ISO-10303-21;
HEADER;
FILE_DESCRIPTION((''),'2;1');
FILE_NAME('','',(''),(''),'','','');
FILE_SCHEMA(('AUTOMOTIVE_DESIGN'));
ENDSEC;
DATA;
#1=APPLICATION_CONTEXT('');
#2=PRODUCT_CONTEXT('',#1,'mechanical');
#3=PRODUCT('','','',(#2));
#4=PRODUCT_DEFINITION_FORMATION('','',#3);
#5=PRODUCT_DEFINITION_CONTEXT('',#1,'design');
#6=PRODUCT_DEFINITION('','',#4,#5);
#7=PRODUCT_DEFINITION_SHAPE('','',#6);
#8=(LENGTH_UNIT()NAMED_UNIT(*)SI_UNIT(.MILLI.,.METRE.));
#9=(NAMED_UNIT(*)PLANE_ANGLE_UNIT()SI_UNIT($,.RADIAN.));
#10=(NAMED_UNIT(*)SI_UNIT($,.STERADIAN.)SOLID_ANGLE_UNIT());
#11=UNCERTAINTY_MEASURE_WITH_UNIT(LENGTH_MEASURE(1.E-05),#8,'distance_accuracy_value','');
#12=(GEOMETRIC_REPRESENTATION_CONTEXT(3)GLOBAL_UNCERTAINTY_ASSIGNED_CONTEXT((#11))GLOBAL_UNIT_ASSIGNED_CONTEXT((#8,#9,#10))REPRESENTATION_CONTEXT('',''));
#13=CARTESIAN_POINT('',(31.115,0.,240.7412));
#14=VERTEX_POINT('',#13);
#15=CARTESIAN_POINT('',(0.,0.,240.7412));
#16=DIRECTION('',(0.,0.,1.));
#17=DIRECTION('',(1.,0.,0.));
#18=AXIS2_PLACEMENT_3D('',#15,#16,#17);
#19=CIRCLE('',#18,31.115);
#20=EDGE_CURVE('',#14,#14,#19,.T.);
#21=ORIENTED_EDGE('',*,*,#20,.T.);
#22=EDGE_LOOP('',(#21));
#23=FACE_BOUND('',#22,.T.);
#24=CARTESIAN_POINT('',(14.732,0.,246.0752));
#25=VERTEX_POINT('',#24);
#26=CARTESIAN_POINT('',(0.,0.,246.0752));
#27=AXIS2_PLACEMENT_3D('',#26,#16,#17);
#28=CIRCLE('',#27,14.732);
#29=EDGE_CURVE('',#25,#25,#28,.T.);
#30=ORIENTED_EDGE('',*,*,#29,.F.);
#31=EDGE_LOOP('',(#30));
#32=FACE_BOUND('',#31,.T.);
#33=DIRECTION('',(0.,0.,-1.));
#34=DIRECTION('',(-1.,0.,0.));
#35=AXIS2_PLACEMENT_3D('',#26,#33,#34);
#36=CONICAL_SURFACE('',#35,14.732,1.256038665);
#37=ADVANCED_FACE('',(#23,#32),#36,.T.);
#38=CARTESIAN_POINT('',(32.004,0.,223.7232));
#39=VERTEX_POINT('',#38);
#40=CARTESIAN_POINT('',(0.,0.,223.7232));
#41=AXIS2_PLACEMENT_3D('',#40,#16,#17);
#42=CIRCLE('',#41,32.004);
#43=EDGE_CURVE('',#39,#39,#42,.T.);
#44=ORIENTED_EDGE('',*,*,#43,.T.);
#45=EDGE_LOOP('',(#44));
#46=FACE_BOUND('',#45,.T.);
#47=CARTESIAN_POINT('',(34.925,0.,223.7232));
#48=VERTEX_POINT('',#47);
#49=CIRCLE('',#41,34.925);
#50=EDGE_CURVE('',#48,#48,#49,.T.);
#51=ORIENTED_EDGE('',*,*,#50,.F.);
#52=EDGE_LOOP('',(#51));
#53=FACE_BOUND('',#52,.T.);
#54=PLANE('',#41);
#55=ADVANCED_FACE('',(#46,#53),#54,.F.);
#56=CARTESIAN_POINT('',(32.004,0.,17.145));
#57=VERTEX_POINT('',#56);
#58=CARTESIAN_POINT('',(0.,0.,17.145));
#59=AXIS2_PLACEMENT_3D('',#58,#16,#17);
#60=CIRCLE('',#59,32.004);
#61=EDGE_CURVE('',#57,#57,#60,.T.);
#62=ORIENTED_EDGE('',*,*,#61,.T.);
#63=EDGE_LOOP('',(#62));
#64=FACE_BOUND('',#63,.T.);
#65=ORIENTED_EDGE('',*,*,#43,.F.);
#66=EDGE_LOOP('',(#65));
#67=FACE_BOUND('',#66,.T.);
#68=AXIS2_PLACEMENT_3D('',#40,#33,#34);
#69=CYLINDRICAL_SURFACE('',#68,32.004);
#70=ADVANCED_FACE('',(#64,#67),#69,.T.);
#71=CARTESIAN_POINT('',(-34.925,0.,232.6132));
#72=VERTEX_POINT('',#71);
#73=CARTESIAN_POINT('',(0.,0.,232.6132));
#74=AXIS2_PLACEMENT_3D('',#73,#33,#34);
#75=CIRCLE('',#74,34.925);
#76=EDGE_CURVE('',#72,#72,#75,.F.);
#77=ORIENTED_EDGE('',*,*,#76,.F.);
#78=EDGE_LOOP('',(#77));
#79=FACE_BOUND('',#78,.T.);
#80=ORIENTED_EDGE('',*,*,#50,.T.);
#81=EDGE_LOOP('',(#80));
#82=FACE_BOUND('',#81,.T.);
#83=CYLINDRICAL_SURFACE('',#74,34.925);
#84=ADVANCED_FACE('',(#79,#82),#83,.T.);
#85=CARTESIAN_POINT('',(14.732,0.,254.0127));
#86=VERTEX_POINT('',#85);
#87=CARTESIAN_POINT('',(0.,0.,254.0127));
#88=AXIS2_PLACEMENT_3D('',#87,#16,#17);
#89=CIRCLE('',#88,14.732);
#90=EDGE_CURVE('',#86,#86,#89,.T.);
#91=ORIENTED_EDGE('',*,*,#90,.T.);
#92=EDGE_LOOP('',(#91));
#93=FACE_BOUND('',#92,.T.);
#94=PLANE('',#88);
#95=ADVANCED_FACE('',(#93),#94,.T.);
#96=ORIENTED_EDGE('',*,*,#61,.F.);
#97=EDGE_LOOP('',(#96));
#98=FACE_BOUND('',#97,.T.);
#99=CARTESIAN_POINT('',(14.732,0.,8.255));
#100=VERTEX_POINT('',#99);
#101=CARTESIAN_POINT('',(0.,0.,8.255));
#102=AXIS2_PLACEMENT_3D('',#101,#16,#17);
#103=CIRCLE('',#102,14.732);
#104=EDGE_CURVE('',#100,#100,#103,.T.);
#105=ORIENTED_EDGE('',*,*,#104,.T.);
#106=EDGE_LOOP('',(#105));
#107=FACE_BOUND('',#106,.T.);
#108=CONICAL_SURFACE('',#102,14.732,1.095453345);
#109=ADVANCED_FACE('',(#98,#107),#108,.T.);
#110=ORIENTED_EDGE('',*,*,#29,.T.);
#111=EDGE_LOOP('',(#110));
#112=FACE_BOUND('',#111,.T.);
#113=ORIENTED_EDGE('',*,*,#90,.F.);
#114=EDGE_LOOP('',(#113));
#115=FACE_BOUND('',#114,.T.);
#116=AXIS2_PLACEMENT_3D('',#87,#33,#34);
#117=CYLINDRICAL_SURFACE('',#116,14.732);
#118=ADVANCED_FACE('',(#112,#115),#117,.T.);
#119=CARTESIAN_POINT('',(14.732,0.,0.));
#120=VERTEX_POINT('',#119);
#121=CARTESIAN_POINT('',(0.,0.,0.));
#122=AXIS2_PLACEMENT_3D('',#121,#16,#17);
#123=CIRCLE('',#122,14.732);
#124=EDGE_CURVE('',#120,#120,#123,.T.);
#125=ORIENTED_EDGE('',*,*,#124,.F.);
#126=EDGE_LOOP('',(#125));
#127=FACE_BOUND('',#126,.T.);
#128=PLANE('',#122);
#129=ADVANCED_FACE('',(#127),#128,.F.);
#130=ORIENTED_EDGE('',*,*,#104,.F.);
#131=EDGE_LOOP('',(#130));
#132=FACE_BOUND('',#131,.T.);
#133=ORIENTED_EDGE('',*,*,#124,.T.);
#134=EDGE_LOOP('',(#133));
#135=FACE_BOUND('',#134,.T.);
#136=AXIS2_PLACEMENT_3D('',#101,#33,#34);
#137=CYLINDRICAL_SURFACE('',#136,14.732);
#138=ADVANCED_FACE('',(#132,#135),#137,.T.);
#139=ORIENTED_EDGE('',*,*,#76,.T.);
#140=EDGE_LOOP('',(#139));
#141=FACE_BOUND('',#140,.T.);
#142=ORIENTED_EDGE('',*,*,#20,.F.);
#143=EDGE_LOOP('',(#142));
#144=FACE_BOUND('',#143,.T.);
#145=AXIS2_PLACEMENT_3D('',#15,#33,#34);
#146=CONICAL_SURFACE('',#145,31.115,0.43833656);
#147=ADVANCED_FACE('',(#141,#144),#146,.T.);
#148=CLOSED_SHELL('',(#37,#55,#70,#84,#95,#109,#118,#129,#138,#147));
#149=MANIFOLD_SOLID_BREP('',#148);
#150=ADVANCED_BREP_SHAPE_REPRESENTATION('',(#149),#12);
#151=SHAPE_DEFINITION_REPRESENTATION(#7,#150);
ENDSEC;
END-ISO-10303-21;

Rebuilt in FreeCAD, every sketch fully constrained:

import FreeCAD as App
import Part
import Sketcher
Q = App.Units.Quantity

doc = App.newDocument("Part")
body = doc.addObject("PartDesign::Body", "Body")

# Sketch on XY plane
sketch1 = doc.addObject("Sketcher::SketchObject", "Sketch")
body.addObject(sketch1)
sketch1.AttachmentSupport = (doc.XY_Plane, [""])
sketch1.MapMode = "FlatFace"
sketch1.addGeometry(Part.Circle(App.Vector(0, 0, 0), App.Vector(0, 0, 1), 14.732), False)
sketch1.addConstraint(Sketcher.Constraint("Coincident", 0, 3, -1, 1))
sketch1.addConstraint(Sketcher.Constraint("Diameter", 0, Q("1.16 in")))
pad1 = doc.addObject("PartDesign::Pad", "Pad")
body.addObject(pad1)
pad1.Profile = sketch1
pad1.Length = Q("0.325 in")

# Sketch on XY plane
sketch2 = doc.addObject("Sketcher::SketchObject", "Sketch001")
body.addObject(sketch2)
sketch2.AttachmentSupport = (doc.XY_Plane, [""])
sketch2.MapMode = "FlatFace"
sketch2.AttachmentOffset = App.Placement(App.Vector(0, 0, 0.325 * 25.4), App.Rotation())
sketch2.addGeometry(Part.Circle(App.Vector(0, 0, 0), App.Vector(0, 0, 1), 14.732), False)
sketch2.addConstraint(Sketcher.Constraint("Coincident", 0, 3, -1, 1))
sketch2.addConstraint(Sketcher.Constraint("Diameter", 0, Q("1.16 in")))

# Sketch on XY plane
sketch3 = doc.addObject("Sketcher::SketchObject", "Sketch002")
body.addObject(sketch3)
sketch3.AttachmentSupport = (doc.XY_Plane, [""])
sketch3.MapMode = "FlatFace"
sketch3.AttachmentOffset = App.Placement(App.Vector(0, 0, 0.675 * 25.4), App.Rotation())
sketch3.addGeometry(Part.Circle(App.Vector(0, 0, 0), App.Vector(0, 0, 1), 32.004), False)
sketch3.addConstraint(Sketcher.Constraint("Coincident", 0, 3, -1, 1))
sketch3.addConstraint(Sketcher.Constraint("Diameter", 0, Q("2.52 in")))

additiveloft = doc.addObject("PartDesign::AdditiveLoft", "AdditiveLoft")
body.addObject(additiveloft)
additiveloft.Profile = sketch2
additiveloft.Sections = [sketch3]

# Sketch on XY plane
sketch4 = doc.addObject("Sketcher::SketchObject", "Sketch003")
body.addObject(sketch4)
sketch4.AttachmentSupport = (doc.XY_Plane, [""])
sketch4.MapMode = "FlatFace"
sketch4.AttachmentOffset = App.Placement(App.Vector(0, 0, 0.675 * 25.4), App.Rotation())
sketch4.addGeometry(Part.Circle(App.Vector(0, 0, 0), App.Vector(0, 0, 1), 32.004), False)
sketch4.addConstraint(Sketcher.Constraint("Coincident", 0, 3, -1, 1))
sketch4.addConstraint(Sketcher.Constraint("Diameter", 0, Q("2.52 in")))
pad2 = doc.addObject("PartDesign::Pad", "Pad001")
body.addObject(pad2)
pad2.Profile = sketch4
pad2.Length = Q("8.133 in")

# Sketch on XY plane
sketch5 = doc.addObject("Sketcher::SketchObject", "Sketch004")
body.addObject(sketch5)
sketch5.AttachmentSupport = (doc.XY_Plane, [""])
sketch5.MapMode = "FlatFace"
sketch5.AttachmentOffset = App.Placement(App.Vector(0, 0, 8.808 * 25.4), App.Rotation())
sketch5.addGeometry(Part.Circle(App.Vector(0, 0, 0), App.Vector(0, 0, 1), 34.925), False)
sketch5.addConstraint(Sketcher.Constraint("Coincident", 0, 3, -1, 1))
sketch5.addConstraint(Sketcher.Constraint("Diameter", 0, Q("2.75 in")))
pad3 = doc.addObject("PartDesign::Pad", "Pad002")
body.addObject(pad3)
pad3.Profile = sketch5
pad3.Length = Q("0.35 in")

# Sketch on XY plane
sketch6 = doc.addObject("Sketcher::SketchObject", "Sketch005")
body.addObject(sketch6)
sketch6.AttachmentSupport = (doc.XY_Plane, [""])
sketch6.MapMode = "FlatFace"
sketch6.AttachmentOffset = App.Placement(App.Vector(0, 0, 9.158 * 25.4), App.Rotation())
sketch6.addGeometry(Part.Circle(App.Vector(0, 0, 0), App.Vector(0, 0, 1), 34.925), False)
sketch6.addConstraint(Sketcher.Constraint("Coincident", 0, 3, -1, 1))
sketch6.addConstraint(Sketcher.Constraint("Diameter", 0, Q("2.75 in")))

# Sketch on XY plane
sketch7 = doc.addObject("Sketcher::SketchObject", "Sketch006")
body.addObject(sketch7)
sketch7.AttachmentSupport = (doc.XY_Plane, [""])
sketch7.MapMode = "FlatFace"
sketch7.AttachmentOffset = App.Placement(App.Vector(0, 0, 9.478 * 25.4), App.Rotation())
sketch7.addGeometry(Part.Circle(App.Vector(0, 0, 0), App.Vector(0, 0, 1), 31.115), False)
sketch7.addConstraint(Sketcher.Constraint("Coincident", 0, 3, -1, 1))
sketch7.addConstraint(Sketcher.Constraint("Diameter", 0, Q("2.45 in")))

additiveloft2 = doc.addObject("PartDesign::AdditiveLoft", "AdditiveLoft001")
body.addObject(additiveloft2)
additiveloft2.Profile = sketch6
additiveloft2.Sections = [sketch7]

# Sketch on XY plane
sketch8 = doc.addObject("Sketcher::SketchObject", "Sketch007")
body.addObject(sketch8)
sketch8.AttachmentSupport = (doc.XY_Plane, [""])
sketch8.MapMode = "FlatFace"
sketch8.AttachmentOffset = App.Placement(App.Vector(0, 0, 9.478 * 25.4), App.Rotation())
sketch8.addGeometry(Part.Circle(App.Vector(0, 0, 0), App.Vector(0, 0, 1), 31.115), False)
sketch8.addConstraint(Sketcher.Constraint("Coincident", 0, 3, -1, 1))
sketch8.addConstraint(Sketcher.Constraint("Diameter", 0, Q("2.45 in")))

# Sketch on XY plane
sketch9 = doc.addObject("Sketcher::SketchObject", "Sketch008")
body.addObject(sketch9)
sketch9.AttachmentSupport = (doc.XY_Plane, [""])
sketch9.MapMode = "FlatFace"
sketch9.AttachmentOffset = App.Placement(App.Vector(0, 0, 9.688 * 25.4), App.Rotation())
sketch9.addGeometry(Part.Circle(App.Vector(0, 0, 0), App.Vector(0, 0, 1), 14.732), False)
sketch9.addConstraint(Sketcher.Constraint("Coincident", 0, 3, -1, 1))
sketch9.addConstraint(Sketcher.Constraint("Diameter", 0, Q("1.16 in")))

additiveloft3 = doc.addObject("PartDesign::AdditiveLoft", "AdditiveLoft002")
body.addObject(additiveloft3)
additiveloft3.Profile = sketch8
additiveloft3.Sections = [sketch9]

# Sketch on XY plane
sketch10 = doc.addObject("Sketcher::SketchObject", "Sketch009")
body.addObject(sketch10)
sketch10.AttachmentSupport = (doc.XY_Plane, [""])
sketch10.MapMode = "FlatFace"
sketch10.AttachmentOffset = App.Placement(App.Vector(0, 0, 9.688 * 25.4), App.Rotation())
sketch10.addGeometry(Part.Circle(App.Vector(0, 0, 0), App.Vector(0, 0, 1), 14.732), False)
sketch10.addConstraint(Sketcher.Constraint("Coincident", 0, 3, -1, 1))
sketch10.addConstraint(Sketcher.Constraint("Diameter", 0, Q("1.16 in")))
pad4 = doc.addObject("PartDesign::Pad", "Pad003")
body.addObject(pad4)
pad4.Profile = sketch10
pad4.Length = Q("0.3125 in")

doc.recompute()
